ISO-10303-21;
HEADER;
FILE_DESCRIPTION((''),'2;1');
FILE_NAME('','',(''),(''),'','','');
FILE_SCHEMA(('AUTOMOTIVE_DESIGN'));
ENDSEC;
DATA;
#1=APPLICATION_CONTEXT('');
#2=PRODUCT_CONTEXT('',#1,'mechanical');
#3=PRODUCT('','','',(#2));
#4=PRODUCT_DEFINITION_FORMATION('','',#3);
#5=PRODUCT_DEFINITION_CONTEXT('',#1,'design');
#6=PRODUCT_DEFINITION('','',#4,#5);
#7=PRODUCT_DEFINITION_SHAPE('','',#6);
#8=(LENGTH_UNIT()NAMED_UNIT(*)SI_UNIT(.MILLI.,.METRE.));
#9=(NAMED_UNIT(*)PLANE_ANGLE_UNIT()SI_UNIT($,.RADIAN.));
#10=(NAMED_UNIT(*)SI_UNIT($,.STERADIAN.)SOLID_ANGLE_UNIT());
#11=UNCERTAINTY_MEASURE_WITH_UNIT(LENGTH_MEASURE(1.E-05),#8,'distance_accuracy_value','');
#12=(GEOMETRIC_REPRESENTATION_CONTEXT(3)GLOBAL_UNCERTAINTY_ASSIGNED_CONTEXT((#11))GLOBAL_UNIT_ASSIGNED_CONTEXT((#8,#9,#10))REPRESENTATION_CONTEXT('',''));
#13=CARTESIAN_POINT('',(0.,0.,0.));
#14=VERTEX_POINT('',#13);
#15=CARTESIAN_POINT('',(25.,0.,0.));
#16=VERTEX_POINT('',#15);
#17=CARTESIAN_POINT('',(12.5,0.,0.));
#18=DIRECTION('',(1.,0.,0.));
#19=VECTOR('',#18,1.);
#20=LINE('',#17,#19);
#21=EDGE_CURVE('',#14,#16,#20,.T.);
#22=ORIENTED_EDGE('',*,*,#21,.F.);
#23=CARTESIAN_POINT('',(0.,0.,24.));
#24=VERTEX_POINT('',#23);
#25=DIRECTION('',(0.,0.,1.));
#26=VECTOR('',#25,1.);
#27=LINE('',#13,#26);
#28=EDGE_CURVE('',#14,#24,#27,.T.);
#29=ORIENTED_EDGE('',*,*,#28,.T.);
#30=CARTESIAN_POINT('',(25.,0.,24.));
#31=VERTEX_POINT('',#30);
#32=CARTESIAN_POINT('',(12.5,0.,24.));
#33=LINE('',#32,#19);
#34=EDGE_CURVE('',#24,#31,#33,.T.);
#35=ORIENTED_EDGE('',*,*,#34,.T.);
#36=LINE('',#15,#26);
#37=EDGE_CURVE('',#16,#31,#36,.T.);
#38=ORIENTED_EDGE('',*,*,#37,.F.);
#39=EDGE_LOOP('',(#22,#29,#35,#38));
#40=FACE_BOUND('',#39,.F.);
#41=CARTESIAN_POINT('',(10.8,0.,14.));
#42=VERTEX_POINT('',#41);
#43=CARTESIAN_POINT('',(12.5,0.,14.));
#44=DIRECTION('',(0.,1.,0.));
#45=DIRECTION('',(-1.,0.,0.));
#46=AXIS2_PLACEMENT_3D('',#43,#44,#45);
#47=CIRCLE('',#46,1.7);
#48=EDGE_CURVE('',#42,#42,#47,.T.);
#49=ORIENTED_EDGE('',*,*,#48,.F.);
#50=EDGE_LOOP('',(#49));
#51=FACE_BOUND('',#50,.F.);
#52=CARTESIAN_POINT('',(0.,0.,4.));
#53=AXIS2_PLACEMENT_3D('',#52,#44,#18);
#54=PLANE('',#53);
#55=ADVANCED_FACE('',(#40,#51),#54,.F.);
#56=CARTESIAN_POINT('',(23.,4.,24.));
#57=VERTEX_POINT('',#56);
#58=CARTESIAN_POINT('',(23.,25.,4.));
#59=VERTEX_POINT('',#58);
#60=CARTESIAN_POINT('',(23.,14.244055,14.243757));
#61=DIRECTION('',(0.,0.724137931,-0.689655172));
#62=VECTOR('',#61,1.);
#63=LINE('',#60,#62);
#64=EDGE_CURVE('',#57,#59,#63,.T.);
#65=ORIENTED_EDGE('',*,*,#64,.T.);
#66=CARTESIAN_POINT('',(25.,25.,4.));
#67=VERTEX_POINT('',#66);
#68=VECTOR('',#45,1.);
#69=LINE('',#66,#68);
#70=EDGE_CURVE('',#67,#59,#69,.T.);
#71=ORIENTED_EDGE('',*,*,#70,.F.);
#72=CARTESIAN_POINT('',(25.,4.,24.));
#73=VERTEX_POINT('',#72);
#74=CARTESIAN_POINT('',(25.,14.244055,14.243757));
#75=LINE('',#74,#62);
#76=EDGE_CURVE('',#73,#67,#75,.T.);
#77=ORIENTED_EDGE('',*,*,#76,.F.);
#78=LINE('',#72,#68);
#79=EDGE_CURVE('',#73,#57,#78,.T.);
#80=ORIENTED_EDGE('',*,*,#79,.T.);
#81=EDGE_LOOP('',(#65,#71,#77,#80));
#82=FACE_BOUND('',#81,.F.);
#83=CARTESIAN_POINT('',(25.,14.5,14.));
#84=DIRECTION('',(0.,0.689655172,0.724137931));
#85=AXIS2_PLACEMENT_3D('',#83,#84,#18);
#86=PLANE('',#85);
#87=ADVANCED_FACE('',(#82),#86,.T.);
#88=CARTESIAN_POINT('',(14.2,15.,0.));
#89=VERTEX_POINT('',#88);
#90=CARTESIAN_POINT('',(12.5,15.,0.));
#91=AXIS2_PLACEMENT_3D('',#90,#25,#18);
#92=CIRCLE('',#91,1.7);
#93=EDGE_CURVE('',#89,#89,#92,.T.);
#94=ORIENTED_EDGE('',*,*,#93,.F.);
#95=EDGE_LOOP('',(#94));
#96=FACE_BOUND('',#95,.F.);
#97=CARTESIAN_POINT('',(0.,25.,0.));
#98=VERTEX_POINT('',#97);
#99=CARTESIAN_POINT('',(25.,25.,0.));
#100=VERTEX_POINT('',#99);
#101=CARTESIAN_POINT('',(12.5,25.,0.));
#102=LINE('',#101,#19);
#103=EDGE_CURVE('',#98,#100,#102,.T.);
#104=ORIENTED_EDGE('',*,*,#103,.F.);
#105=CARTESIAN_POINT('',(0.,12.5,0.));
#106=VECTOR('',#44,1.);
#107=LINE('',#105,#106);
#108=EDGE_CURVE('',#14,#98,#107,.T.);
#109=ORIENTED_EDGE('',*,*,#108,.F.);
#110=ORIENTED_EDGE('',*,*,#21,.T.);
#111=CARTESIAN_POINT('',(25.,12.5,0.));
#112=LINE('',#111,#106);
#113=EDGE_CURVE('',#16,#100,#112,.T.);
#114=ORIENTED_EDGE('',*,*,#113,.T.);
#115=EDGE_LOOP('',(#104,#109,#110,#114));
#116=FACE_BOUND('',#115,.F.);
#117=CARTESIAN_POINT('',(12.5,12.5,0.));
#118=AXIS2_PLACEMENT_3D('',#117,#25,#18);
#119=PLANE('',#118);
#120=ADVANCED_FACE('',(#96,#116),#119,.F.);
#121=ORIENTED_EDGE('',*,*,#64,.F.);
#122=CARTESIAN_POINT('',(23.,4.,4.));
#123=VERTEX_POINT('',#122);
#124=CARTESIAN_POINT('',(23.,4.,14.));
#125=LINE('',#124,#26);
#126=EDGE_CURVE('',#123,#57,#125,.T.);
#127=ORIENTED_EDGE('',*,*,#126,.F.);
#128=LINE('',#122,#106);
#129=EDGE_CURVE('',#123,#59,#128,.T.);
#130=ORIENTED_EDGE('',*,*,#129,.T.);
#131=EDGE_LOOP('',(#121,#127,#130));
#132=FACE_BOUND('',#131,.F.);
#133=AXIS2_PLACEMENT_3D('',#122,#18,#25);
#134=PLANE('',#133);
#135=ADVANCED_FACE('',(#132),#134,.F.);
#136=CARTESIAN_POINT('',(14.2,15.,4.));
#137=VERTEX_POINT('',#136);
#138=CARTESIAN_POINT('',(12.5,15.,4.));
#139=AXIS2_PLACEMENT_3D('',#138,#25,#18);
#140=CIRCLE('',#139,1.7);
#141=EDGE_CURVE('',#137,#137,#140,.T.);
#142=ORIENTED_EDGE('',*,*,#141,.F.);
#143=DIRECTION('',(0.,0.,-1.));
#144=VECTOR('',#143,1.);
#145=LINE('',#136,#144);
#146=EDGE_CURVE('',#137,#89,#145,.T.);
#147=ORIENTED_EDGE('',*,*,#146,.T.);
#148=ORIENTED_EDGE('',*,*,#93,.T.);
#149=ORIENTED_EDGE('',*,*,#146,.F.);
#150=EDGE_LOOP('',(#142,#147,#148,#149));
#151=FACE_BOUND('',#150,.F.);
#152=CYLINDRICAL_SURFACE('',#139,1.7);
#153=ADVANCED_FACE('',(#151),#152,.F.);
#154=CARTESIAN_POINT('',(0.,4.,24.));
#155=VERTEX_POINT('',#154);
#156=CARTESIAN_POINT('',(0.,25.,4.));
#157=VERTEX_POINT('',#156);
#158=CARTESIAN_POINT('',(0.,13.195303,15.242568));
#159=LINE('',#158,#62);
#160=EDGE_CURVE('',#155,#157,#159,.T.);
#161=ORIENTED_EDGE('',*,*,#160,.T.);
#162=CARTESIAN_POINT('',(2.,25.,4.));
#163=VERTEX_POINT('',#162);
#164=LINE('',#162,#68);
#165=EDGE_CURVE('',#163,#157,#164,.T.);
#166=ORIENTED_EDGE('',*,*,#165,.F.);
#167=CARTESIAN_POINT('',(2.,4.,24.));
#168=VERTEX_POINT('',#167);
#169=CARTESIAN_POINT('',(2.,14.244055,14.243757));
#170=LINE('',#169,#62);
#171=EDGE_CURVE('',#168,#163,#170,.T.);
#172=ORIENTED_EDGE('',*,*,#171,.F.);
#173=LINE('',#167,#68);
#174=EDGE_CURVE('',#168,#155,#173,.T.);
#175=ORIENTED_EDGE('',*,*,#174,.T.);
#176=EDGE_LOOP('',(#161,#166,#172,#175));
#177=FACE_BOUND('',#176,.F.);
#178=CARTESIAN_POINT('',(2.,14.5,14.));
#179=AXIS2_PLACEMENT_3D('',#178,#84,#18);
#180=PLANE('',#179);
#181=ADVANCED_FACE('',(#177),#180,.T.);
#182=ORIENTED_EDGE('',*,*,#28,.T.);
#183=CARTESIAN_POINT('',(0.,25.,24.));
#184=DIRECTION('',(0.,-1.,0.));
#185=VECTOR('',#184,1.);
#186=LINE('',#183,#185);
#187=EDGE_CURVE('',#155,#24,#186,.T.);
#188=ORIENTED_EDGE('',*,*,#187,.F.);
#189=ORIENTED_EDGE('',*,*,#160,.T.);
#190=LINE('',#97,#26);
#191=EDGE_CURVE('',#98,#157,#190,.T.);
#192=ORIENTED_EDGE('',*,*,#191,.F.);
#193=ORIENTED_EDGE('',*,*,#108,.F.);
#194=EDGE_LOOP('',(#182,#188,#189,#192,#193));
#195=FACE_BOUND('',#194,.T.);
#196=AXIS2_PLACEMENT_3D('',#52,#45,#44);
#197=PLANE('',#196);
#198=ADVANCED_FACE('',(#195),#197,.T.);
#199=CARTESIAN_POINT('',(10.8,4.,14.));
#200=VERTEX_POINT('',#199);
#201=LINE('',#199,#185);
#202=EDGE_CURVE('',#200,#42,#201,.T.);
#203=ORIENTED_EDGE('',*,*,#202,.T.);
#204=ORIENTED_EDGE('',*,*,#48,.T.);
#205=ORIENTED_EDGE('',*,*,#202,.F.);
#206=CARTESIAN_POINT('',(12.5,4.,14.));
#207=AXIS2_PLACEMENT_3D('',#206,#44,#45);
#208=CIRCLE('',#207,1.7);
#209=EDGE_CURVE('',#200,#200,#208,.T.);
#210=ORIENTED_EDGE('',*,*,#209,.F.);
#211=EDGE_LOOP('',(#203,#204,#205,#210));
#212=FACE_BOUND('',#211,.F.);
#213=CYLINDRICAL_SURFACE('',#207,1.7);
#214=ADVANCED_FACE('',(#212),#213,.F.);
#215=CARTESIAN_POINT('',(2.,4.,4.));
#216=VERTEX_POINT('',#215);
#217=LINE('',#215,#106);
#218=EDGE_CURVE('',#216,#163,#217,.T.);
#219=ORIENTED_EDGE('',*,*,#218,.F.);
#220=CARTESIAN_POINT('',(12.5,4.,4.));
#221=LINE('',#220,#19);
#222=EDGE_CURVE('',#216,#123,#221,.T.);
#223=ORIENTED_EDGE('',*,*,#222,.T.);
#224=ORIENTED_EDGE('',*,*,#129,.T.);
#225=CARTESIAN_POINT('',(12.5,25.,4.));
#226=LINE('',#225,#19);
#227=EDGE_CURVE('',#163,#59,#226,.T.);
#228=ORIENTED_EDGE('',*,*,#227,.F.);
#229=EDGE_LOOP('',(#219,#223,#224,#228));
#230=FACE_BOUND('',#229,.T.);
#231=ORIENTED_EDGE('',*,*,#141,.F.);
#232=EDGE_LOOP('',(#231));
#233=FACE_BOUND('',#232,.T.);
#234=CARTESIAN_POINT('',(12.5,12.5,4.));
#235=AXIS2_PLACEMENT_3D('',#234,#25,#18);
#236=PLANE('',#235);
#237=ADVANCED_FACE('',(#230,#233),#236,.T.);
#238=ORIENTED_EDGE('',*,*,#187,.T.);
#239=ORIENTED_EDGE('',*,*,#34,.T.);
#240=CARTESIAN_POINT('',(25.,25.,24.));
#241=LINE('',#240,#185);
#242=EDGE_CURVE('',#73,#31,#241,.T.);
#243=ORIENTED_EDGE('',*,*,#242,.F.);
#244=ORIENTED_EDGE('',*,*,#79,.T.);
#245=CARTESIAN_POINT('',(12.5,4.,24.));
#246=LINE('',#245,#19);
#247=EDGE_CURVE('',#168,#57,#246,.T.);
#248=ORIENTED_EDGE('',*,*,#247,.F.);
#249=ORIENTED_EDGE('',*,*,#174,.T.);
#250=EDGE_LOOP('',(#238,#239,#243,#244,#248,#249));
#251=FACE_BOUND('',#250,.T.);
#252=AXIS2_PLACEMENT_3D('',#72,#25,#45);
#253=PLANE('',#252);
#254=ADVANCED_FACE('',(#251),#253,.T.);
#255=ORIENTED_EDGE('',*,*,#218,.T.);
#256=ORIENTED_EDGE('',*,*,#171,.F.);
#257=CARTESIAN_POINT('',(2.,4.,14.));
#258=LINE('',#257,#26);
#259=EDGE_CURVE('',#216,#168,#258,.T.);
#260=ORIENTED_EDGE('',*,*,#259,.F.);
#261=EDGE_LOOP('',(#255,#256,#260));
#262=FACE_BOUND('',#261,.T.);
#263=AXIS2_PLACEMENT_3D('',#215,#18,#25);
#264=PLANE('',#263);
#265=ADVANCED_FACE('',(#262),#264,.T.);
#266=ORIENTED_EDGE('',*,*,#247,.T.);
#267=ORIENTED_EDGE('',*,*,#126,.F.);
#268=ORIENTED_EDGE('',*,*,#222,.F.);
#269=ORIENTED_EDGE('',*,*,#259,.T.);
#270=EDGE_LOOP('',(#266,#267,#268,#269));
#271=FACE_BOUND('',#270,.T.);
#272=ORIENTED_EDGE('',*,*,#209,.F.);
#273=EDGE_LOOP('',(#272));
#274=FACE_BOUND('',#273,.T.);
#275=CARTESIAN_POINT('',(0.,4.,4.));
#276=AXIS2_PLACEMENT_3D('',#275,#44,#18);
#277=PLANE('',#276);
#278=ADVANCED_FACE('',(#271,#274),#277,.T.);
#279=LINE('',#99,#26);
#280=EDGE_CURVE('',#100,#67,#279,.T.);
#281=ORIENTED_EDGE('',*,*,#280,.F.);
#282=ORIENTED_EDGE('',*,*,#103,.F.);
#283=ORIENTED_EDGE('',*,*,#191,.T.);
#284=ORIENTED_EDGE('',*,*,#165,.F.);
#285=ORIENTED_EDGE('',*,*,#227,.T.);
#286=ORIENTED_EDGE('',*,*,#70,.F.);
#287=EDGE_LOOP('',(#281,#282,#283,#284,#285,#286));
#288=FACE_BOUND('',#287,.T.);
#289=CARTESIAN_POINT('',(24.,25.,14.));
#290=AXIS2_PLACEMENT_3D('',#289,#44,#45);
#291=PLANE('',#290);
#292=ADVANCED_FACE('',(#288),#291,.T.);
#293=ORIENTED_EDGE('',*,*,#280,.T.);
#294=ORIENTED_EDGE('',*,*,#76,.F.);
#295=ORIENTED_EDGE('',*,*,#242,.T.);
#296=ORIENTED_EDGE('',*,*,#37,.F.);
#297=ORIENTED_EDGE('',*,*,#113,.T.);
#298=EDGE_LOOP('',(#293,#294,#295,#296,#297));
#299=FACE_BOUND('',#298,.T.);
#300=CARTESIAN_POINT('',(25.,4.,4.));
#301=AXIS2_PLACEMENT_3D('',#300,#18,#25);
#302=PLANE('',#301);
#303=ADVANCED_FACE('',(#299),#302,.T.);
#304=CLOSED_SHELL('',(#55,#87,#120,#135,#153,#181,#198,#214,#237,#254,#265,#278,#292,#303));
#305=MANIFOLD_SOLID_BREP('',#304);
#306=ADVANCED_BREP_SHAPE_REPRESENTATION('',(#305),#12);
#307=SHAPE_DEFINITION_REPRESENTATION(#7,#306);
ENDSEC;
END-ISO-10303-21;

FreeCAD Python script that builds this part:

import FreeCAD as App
import Part
import Sketcher

V = App.Vector


def edges_at(feature, points):
    """Names of the edges that pass closest to the given points."""
    edges = feature.Shape.Edges
    near = lambda p: min(range(len(edges)), key=lambda i: edges[i].distToShape(Part.Vertex(*p))[0])
    return sorted({f"Edge{near(p) + 1}" for p in points})

doc = App.newDocument("Part")
body = doc.addObject("PartDesign::Body", "Body")

sketch1 = body.newObject("Sketcher::SketchObject", "Sketch")
sketch1.AttachmentSupport = (doc.getObject("XY_Plane"), [""])
sketch1.MapMode = "FlatFace"
sketch1.addGeometry([
    Part.LineSegment(V(0, 25, 0), V(0, 0, 0)),
    Part.LineSegment(V(0, 0, 0), V(25, 0, 0)),
    Part.LineSegment(V(25, 0, 0), V(25, 25, 0)),
    Part.LineSegment(V(25, 25, 0), V(0, 25, 0)),
], False)
sketch1.addConstraint([
    Sketcher.Constraint("Coincident", 0, 2, 1, 1),
    Sketcher.Constraint("Coincident", 1, 2, 2, 1),
    Sketcher.Constraint("Coincident", 2, 2, 3, 1),
    Sketcher.Constraint("Coincident", 3, 2, 0, 1),
    Sketcher.Constraint("Vertical", 0),
    Sketcher.Constraint("Horizontal", 1),
    Sketcher.Constraint("Vertical", 2),
    Sketcher.Constraint("Horizontal", 3),
    Sketcher.Constraint("Coincident", 0, 2, -1, 1),
    Sketcher.Constraint("Equal", 3, 0),
    Sketcher.Constraint("DistanceX", 1, 1, 1, 2, 25.0),
])
pad1 = body.newObject("PartDesign::Pad", "Pad")
pad1.Profile = sketch1
pad1.Length = 4

sketch2 = body.newObject("Sketcher::SketchObject", "Sketch001")
sketch2.AttachmentSupport = (doc.getObject("XY_Plane"), [""])
sketch2.MapMode = "FlatFace"
sketch2.AttachmentOffset = App.Placement(V(0, 0, 4), App.Rotation())
sketch2.addGeometry([
    Part.LineSegment(V(0, 4, 0), V(0, 0, 0)),
    Part.LineSegment(V(0, 0, 0), V(25, 0, 0)),
    Part.LineSegment(V(25, 0, 0), V(25, 4, 0)),
    Part.LineSegment(V(25, 4, 0), V(0, 4, 0)),
], False)
sketch2.addConstraint([
    Sketcher.Constraint("Coincident", 0, 2, 1, 1),
    Sketcher.Constraint("Coincident", 1, 2, 2, 1),
    Sketcher.Constraint("Coincident", 2, 2, 3, 1),
    Sketcher.Constraint("Coincident", 3, 2, 0, 1),
    Sketcher.Constraint("Vertical", 0),
    Sketcher.Constraint("Horizontal", 1),
    Sketcher.Constraint("Vertical", 2),
    Sketcher.Constraint("Horizontal", 3),
    Sketcher.Constraint("Coincident", 0, 2, -1, 1),
    Sketcher.Constraint("DistanceX", 1, 1, 1, 2, 25.0),
    Sketcher.Constraint("DistanceY", 0, 2, 0, 1, 4.0),
])
pad2 = body.newObject("PartDesign::Pad", "Pad001")
pad2.Profile = sketch2
pad2.Length = 20

sketch3 = body.newObject("Sketcher::SketchObject", "Sketch002")
sketch3.AttachmentSupport = (doc.getObject("XZ_Plane"), [""])
sketch3.MapMode = "FlatFace"
sketch3.AttachmentOffset = App.Placement(V(0, 0, -4), App.Rotation())
sketch3.addGeometry([
    Part.LineSegment(V(25, 24, 0), V(25, 4, 0)),
    Part.LineSegment(V(25, 4, 0), V(23, 4, 0)),
    Part.LineSegment(V(23, 4, 0), V(23, 24, 0)),
    Part.LineSegment(V(23, 24, 0), V(25, 24, 0)),
    Part.LineSegment(V(2, 24, 0), V(2, 4, 0)),
    Part.LineSegment(V(2, 4, 0), V(0, 4, 0)),
    Part.LineSegment(V(0, 4, 0), V(0, 24, 0)),
    Part.LineSegment(V(0, 24, 0), V(2, 24, 0)),
], False)
sketch3.addConstraint([
    Sketcher.Constraint("Coincident", 0, 2, 1, 1),
    Sketcher.Constraint("Coincident", 1, 2, 2, 1),
    Sketcher.Constraint("Coincident", 2, 2, 3, 1),
    Sketcher.Constraint("Coincident", 3, 2, 0, 1),
    Sketcher.Constraint("Coincident", 4, 2, 5, 1),
    Sketcher.Constraint("Coincident", 5, 2, 6, 1),
    Sketcher.Constraint("Coincident", 6, 2, 7, 1),
    Sketcher.Constraint("Coincident", 7, 2, 4, 1),
    Sketcher.Constraint("Vertical", 0),
    Sketcher.Constraint("Horizontal", 1),
    Sketcher.Constraint("Vertical", 2),
    Sketcher.Constraint("Horizontal", 3),
    Sketcher.Constraint("Vertical", 4),
    Sketcher.Constraint("Horizontal", 5),
    Sketcher.Constraint("Vertical", 6),
    Sketcher.Constraint("Horizontal", 7),
    Sketcher.Constraint("PointOnObject", 5, 2, -2),
    Sketcher.Constraint("Horizontal", 1, 2, 4, 2),
    Sketcher.Constraint("Horizontal", 3, 2, 6, 2),
    Sketcher.Constraint("Equal", 3, 5),
    Sketcher.Constraint("DistanceX", 1, 2, 1, 1, 2.0),
    Sketcher.Constraint("DistanceY", 0, 2, 0, 1, 20.0),
    Sketcher.Constraint("DistanceX", -1, 1, 0, 2, 25.0),
    Sketcher.Constraint("DistanceY", -1, 1, 0, 2, 4.0),
])
pad3 = body.newObject("PartDesign::Pad", "Pad002")
pad3.Profile = sketch3
pad3.Length = 21
pad3.Reversed = True
doc.recompute()

chamfer = body.newObject("PartDesign::Chamfer", "Chamfer")
chamfer.Base = (pad3, edges_at(pad3, [(24, 25, 24), (1, 25, 24)]))
chamfer.ChamferType = "Two distances"
chamfer.Size = 21
chamfer.Size2 = 20
chamfer.FlipDirection = True

sketch4 = body.newObject("Sketcher::SketchObject", "Sketch003")
sketch4.AttachmentSupport = (doc.getObject("XZ_Plane"), [""])
sketch4.MapMode = "FlatFace"
sketch4.AttachmentOffset = App.Placement(V(0, 0, -4), App.Rotation())
sketch4.addGeometry(Part.Circle(V(12.5, 14, 0), V(0, 0, 1), 1.7), False)
sketch4.addConstraint([
    Sketcher.Constraint("Diameter", 0, 3.4),
    Sketcher.Constraint("DistanceY", -1, 1, 0, 3, 14.0),
    Sketcher.Constraint("DistanceX", -1, 1, 0, 3, 12.5),
])
pocket1 = body.newObject("PartDesign::Pocket", "Pocket")
pocket1.Profile = sketch4
pocket1.Length = 25
pocket1.Reversed = True

sketch5 = body.newObject("Sketcher::SketchObject", "Sketch004")
sketch5.AttachmentSupport = (doc.getObject("XY_Plane"), [""])
sketch5.MapMode = "FlatFace"
sketch5.AttachmentOffset = App.Placement(V(0, 0, 4), App.Rotation())
sketch5.addGeometry(Part.Circle(V(12.5, 15, 0), V(0, 0, 1), 1.7), False)
sketch5.addConstraint([
    Sketcher.Constraint("Diameter", 0, 3.4),
    Sketcher.Constraint("DistanceY", -1, 1, 0, 3, 15.0),
    Sketcher.Constraint("DistanceX", -1, 1, 0, 3, 12.5),
])
pocket2 = body.newObject("PartDesign::Pocket", "Pocket001")
pocket2.Profile = sketch5
pocket2.Length = 25

doc.recompute()
